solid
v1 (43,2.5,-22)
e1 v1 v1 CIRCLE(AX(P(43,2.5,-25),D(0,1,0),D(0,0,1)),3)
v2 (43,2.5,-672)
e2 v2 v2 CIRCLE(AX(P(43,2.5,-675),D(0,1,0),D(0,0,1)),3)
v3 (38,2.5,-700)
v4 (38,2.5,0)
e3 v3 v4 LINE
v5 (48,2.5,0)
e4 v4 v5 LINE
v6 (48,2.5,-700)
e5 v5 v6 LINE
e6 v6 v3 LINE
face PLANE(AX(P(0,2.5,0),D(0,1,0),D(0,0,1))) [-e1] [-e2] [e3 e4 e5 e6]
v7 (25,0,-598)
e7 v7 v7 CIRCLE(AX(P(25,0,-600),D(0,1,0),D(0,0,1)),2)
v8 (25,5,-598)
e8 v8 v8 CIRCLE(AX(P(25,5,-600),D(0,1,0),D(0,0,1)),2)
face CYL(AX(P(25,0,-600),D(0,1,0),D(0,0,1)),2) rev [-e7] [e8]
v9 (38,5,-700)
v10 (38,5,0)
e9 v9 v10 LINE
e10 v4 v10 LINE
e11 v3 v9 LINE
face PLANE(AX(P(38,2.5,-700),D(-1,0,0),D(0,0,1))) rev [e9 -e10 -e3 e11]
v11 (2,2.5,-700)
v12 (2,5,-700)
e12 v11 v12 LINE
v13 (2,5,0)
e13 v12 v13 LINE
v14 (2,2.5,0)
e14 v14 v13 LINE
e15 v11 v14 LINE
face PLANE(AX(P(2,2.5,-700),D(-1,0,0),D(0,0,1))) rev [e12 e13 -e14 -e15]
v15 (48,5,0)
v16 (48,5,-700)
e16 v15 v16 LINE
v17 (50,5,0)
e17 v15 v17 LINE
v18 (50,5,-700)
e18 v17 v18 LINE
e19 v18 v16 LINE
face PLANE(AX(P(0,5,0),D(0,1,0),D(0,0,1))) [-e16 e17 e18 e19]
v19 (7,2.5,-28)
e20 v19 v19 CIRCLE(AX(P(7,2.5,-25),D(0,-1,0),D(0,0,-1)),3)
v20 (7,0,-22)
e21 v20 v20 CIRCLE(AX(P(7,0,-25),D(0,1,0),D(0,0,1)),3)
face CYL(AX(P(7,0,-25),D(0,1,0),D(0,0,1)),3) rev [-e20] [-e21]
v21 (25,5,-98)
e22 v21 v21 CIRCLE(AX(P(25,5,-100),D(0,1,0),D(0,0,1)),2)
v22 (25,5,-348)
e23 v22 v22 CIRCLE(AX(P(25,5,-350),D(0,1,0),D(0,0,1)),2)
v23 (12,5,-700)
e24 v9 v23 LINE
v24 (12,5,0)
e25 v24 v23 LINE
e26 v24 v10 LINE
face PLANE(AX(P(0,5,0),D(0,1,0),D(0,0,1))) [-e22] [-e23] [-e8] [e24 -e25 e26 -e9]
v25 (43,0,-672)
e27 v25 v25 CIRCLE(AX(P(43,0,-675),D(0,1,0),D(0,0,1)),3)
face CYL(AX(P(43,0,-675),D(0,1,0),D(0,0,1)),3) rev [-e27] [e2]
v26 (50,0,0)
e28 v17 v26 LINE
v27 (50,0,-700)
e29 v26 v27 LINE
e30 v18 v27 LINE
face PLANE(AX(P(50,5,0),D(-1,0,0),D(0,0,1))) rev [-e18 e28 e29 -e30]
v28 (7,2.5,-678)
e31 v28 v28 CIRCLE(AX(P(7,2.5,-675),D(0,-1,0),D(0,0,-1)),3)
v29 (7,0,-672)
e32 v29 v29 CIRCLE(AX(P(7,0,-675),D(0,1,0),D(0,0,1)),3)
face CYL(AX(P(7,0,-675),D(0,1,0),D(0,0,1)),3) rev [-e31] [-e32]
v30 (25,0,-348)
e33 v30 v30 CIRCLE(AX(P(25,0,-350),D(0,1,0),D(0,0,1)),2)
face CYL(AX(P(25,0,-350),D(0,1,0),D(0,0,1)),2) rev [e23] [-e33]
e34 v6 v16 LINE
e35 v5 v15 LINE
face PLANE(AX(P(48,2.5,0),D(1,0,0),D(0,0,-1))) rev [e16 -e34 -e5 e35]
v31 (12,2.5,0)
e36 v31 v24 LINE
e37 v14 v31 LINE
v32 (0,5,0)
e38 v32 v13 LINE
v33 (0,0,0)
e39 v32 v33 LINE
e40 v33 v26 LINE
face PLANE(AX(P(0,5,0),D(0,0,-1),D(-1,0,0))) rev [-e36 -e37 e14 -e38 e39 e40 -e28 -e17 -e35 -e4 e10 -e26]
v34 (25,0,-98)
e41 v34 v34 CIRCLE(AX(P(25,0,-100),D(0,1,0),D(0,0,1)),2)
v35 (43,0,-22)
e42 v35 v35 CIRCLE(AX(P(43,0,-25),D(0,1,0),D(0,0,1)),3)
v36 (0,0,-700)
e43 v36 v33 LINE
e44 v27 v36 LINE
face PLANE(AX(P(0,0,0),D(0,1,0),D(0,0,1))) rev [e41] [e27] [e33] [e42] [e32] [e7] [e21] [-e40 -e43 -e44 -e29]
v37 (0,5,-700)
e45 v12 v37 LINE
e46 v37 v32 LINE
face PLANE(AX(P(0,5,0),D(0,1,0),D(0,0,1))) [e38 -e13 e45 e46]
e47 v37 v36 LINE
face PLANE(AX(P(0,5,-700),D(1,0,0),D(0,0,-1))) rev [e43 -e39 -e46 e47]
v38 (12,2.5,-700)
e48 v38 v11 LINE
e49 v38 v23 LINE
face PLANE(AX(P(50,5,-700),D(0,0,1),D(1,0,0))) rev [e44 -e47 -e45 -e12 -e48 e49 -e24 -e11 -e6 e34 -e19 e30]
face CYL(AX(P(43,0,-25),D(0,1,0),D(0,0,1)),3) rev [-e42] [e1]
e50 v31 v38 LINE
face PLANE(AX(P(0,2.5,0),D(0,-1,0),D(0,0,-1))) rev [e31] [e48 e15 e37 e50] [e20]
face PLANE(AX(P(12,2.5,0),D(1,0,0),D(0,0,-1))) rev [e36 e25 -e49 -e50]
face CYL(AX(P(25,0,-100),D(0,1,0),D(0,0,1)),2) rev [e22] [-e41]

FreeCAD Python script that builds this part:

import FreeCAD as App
import Part
import Sketcher

V = App.Vector

doc = App.newDocument("Part")
body = doc.addObject("PartDesign::Body", "Body")

# Sketch on XZ plane
sketch1 = body.newObject("Sketcher::SketchObject", "Sketch")
sketch1.AttachmentSupport = (doc.getObject("XZ_Plane"), [""])
sketch1.MapMode = "FlatFace"
sketch1.addGeometry(Part.LineSegment(V(0, -700, 0), V(0, 0, 0)), False)
sketch1.addGeometry(Part.LineSegment(V(0, 0, 0), V(50, 0, 0)), False)
sketch1.addGeometry(Part.LineSegment(V(50, 0, 0), V(50, -700, 0)), False)
sketch1.addGeometry(Part.LineSegment(V(50, -700, 0), V(0, -700, 0)), False)
sketch1.addConstraint(Sketcher.Constraint("Coincident", 0, 2, 1, 1))
sketch1.addConstraint(Sketcher.Constraint("Coincident", 1, 2, 2, 1))
sketch1.addConstraint(Sketcher.Constraint("Coincident", 2, 2, 3, 1))
sketch1.addConstraint(Sketcher.Constraint("Coincident", 3, 2, 0, 1))
sketch1.addConstraint(Sketcher.Constraint("Vertical", 0))
sketch1.addConstraint(Sketcher.Constraint("Horizontal", 1))
sketch1.addConstraint(Sketcher.Constraint("Vertical", 2))
sketch1.addConstraint(Sketcher.Constraint("Horizontal", 3))
sketch1.addConstraint(Sketcher.Constraint("Coincident", 0, 2, -1, 1))
sketch1.addConstraint(Sketcher.Constraint("DistanceX", 1, 1, 1, 2, 50.0))
sketch1.addConstraint(Sketcher.Constraint("DistanceY", 0, 1, 0, 2, 700.0))
pad1 = body.newObject("PartDesign::Pad", "Pad")
pad1.Profile = sketch1
pad1.Length = 5
pad1.Reversed = True

# Sketch on XZ plane
sketch2 = body.newObject("Sketcher::SketchObject", "Sketch001")
sketch2.AttachmentSupport = (doc.getObject("XZ_Plane"), [""])
sketch2.MapMode = "FlatFace"
sketch2.AttachmentOffset = App.Placement(V(0, 0, -5), App.Rotation())
sketch2.addGeometry(Part.Circle(V(25, -600, 0), V(0, 0, 1), 2), False)
sketch2.addGeometry(Part.Circle(V(25, -350, 0), V(0, 0, 1), 2), False)
sketch2.addGeometry(Part.Circle(V(25, -100, 0), V(0, 0, 1), 2), False)
sketch2.addConstraint(Sketcher.Constraint("Equal", 0, 1))
sketch2.addConstraint(Sketcher.Constraint("Equal", 1, 2))
sketch2.addConstraint(Sketcher.Constraint("Vertical", 0, 3, 1, 3))
sketch2.addConstraint(Sketcher.Constraint("Vertical", 1, 3, 2, 3))
sketch2.addConstraint(Sketcher.Constraint("Diameter", 0, 4.0))
sketch2.addConstraint(Sketcher.Constraint("DistanceX", -1, 1, 0, 3, 25.0))
sketch2.addConstraint(Sketcher.Constraint("DistanceY", 0, 3, -1, 1, 600.0))
sketch2.addConstraint(Sketcher.Constraint("DistanceY", 1, 3, -1, 1, 350.0))
sketch2.addConstraint(Sketcher.Constraint("DistanceY", 2, 3, -1, 1, 100.0))
pocket1 = body.newObject("PartDesign::Pocket", "Pocket")
pocket1.Profile = sketch2
pocket1.Type = "ThroughAll"
pocket1.Reversed = True

# Sketch on XZ plane
sketch3 = body.newObject("Sketcher::SketchObject", "Sketch002")
sketch3.AttachmentSupport = (doc.getObject("XZ_Plane"), [""])
sketch3.MapMode = "FlatFace"
sketch3.AttachmentOffset = App.Placement(V(0, 0, -5), App.Rotation())
sketch3.addGeometry(Part.LineSegment(V(2, -700, 0), V(2, 0, 0)), False)
sketch3.addGeometry(Part.LineSegment(V(2, 0, 0), V(12, 0, 0)), False)
sketch3.addGeometry(Part.LineSegment(V(12, 0, 0), V(12, -700, 0)), False)
sketch3.addGeometry(Part.LineSegment(V(12, -700, 0), V(2, -700, 0)), False)
sketch3.addGeometry(Part.LineSegment(V(38, -700, 0), V(38, 0, 0)), False)
sketch3.addGeometry(Part.LineSegment(V(38, 0, 0), V(48, 0, 0)), False)
sketch3.addGeometry(Part.LineSegment(V(48, 0, 0), V(48, -700, 0)), False)
sketch3.addGeometry(Part.LineSegment(V(48, -700, 0), V(38, -700, 0)), False)
sketch3.addConstraint(Sketcher.Constraint("Coincident", 0, 2, 1, 1))
sketch3.addConstraint(Sketcher.Constraint("Coincident", 1, 2, 2, 1))
sketch3.addConstraint(Sketcher.Constraint("Coincident", 2, 2, 3, 1))
sketch3.addConstraint(Sketcher.Constraint("Coincident", 3, 2, 0, 1))
sketch3.addConstraint(Sketcher.Constraint("Coincident", 4, 2, 5, 1))
sketch3.addConstraint(Sketcher.Constraint("Coincident", 5, 2, 6, 1))
sketch3.addConstraint(Sketcher.Constraint("Coincident", 6, 2, 7, 1))
sketch3.addConstraint(Sketcher.Constraint("Coincident", 7, 2, 4, 1))
sketch3.addConstraint(Sketcher.Constraint("Vertical", 0))
sketch3.addConstraint(Sketcher.Constraint("Horizontal", 1))
sketch3.addConstraint(Sketcher.Constraint("Vertical", 2))
sketch3.addConstraint(Sketcher.Constraint("Horizontal", 3))
sketch3.addConstraint(Sketcher.Constraint("Vertical", 4))
sketch3.addConstraint(Sketcher.Constraint("Horizontal", 5))
sketch3.addConstraint(Sketcher.Constraint("Vertical", 6))
sketch3.addConstraint(Sketcher.Constraint("Horizontal", 7))
sketch3.addConstraint(Sketcher.Constraint("PointOnObject", 0, 2, -1))
sketch3.addConstraint(Sketcher.Constraint("PointOnObject", 4, 2, -1))
sketch3.addConstraint(Sketcher.Constraint("Horizontal", 3, 2, 6, 2))
sketch3.addConstraint(Sketcher.Constraint("Equal", 3, 5))
sketch3.addConstraint(Sketcher.Constraint("DistanceX", 1, 1, 1, 2, 10.0))
sketch3.addConstraint(Sketcher.Constraint("DistanceY", 0, 1, 0, 2, 700.0))
sketch3.addConstraint(Sketcher.Constraint("DistanceX", -1, 1, 0, 2, 2.0))
sketch3.addConstraint(Sketcher.Constraint("DistanceX", -1, 1, 4, 2, 38.0))
pocket2 = body.newObject("PartDesign::Pocket", "Pocket001")
pocket2.Profile = sketch3
pocket2.Length = 2.5
pocket2.Reversed = True

# Sketch on XZ plane
sketch4 = body.newObject("Sketcher::SketchObject", "Sketch003")
sketch4.AttachmentSupport = (doc.getObject("XZ_Plane"), [""])
sketch4.MapMode = "FlatFace"
sketch4.AttachmentOffset = App.Placement(V(0, 0, -5), App.Rotation())
sketch4.addGeometry(Part.Circle(V(43, -25, 0), V(0, 0, 1), 3), False)
sketch4.addGeometry(Part.Circle(V(7, -25, 0), V(0, 0, 1), 3), False)
sketch4.addGeometry(Part.Circle(V(43, -675, 0), V(0, 0, 1), 3), False)
sketch4.addGeometry(Part.Circle(V(7, -675, 0), V(0, 0, 1), 3), False)
sketch4.addConstraint(Sketcher.Constraint("Equal", 0, 1))
sketch4.addConstraint(Sketcher.Constraint("Equal", 1, 2))
sketch4.addConstraint(Sketcher.Constraint("Equal", 2, 3))
sketch4.addConstraint(Sketcher.Constraint("Horizontal", 0, 3, 1, 3))
sketch4.addConstraint(Sketcher.Constraint("Horizontal", 2, 3, 3, 3))
sketch4.addConstraint(Sketcher.Constraint("Vertical", 0, 3, 2, 3))
sketch4.addConstraint(Sketcher.Constraint("Vertical", 1, 3, 3, 3))
sketch4.addConstraint(Sketcher.Constraint("Diameter", 0, 6.0))
sketch4.addConstraint(Sketcher.Constraint("DistanceX", -1, 1, 0, 3, 43.0))
sketch4.addConstraint(Sketcher.Constraint("DistanceY", 0, 3, -1, 1, 25.0))
sketch4.addConstraint(Sketcher.Constraint("DistanceX", -1, 1, 1, 3, 7.0))
sketch4.addConstraint(Sketcher.Constraint("DistanceY", 2, 3, -1, 1, 675.0))
pocket3 = body.newObject("PartDesign::Pocket", "Pocket002")
pocket3.Profile = sketch4
pocket3.Type = "ThroughAll"
pocket3.Reversed = True

doc.recompute()
